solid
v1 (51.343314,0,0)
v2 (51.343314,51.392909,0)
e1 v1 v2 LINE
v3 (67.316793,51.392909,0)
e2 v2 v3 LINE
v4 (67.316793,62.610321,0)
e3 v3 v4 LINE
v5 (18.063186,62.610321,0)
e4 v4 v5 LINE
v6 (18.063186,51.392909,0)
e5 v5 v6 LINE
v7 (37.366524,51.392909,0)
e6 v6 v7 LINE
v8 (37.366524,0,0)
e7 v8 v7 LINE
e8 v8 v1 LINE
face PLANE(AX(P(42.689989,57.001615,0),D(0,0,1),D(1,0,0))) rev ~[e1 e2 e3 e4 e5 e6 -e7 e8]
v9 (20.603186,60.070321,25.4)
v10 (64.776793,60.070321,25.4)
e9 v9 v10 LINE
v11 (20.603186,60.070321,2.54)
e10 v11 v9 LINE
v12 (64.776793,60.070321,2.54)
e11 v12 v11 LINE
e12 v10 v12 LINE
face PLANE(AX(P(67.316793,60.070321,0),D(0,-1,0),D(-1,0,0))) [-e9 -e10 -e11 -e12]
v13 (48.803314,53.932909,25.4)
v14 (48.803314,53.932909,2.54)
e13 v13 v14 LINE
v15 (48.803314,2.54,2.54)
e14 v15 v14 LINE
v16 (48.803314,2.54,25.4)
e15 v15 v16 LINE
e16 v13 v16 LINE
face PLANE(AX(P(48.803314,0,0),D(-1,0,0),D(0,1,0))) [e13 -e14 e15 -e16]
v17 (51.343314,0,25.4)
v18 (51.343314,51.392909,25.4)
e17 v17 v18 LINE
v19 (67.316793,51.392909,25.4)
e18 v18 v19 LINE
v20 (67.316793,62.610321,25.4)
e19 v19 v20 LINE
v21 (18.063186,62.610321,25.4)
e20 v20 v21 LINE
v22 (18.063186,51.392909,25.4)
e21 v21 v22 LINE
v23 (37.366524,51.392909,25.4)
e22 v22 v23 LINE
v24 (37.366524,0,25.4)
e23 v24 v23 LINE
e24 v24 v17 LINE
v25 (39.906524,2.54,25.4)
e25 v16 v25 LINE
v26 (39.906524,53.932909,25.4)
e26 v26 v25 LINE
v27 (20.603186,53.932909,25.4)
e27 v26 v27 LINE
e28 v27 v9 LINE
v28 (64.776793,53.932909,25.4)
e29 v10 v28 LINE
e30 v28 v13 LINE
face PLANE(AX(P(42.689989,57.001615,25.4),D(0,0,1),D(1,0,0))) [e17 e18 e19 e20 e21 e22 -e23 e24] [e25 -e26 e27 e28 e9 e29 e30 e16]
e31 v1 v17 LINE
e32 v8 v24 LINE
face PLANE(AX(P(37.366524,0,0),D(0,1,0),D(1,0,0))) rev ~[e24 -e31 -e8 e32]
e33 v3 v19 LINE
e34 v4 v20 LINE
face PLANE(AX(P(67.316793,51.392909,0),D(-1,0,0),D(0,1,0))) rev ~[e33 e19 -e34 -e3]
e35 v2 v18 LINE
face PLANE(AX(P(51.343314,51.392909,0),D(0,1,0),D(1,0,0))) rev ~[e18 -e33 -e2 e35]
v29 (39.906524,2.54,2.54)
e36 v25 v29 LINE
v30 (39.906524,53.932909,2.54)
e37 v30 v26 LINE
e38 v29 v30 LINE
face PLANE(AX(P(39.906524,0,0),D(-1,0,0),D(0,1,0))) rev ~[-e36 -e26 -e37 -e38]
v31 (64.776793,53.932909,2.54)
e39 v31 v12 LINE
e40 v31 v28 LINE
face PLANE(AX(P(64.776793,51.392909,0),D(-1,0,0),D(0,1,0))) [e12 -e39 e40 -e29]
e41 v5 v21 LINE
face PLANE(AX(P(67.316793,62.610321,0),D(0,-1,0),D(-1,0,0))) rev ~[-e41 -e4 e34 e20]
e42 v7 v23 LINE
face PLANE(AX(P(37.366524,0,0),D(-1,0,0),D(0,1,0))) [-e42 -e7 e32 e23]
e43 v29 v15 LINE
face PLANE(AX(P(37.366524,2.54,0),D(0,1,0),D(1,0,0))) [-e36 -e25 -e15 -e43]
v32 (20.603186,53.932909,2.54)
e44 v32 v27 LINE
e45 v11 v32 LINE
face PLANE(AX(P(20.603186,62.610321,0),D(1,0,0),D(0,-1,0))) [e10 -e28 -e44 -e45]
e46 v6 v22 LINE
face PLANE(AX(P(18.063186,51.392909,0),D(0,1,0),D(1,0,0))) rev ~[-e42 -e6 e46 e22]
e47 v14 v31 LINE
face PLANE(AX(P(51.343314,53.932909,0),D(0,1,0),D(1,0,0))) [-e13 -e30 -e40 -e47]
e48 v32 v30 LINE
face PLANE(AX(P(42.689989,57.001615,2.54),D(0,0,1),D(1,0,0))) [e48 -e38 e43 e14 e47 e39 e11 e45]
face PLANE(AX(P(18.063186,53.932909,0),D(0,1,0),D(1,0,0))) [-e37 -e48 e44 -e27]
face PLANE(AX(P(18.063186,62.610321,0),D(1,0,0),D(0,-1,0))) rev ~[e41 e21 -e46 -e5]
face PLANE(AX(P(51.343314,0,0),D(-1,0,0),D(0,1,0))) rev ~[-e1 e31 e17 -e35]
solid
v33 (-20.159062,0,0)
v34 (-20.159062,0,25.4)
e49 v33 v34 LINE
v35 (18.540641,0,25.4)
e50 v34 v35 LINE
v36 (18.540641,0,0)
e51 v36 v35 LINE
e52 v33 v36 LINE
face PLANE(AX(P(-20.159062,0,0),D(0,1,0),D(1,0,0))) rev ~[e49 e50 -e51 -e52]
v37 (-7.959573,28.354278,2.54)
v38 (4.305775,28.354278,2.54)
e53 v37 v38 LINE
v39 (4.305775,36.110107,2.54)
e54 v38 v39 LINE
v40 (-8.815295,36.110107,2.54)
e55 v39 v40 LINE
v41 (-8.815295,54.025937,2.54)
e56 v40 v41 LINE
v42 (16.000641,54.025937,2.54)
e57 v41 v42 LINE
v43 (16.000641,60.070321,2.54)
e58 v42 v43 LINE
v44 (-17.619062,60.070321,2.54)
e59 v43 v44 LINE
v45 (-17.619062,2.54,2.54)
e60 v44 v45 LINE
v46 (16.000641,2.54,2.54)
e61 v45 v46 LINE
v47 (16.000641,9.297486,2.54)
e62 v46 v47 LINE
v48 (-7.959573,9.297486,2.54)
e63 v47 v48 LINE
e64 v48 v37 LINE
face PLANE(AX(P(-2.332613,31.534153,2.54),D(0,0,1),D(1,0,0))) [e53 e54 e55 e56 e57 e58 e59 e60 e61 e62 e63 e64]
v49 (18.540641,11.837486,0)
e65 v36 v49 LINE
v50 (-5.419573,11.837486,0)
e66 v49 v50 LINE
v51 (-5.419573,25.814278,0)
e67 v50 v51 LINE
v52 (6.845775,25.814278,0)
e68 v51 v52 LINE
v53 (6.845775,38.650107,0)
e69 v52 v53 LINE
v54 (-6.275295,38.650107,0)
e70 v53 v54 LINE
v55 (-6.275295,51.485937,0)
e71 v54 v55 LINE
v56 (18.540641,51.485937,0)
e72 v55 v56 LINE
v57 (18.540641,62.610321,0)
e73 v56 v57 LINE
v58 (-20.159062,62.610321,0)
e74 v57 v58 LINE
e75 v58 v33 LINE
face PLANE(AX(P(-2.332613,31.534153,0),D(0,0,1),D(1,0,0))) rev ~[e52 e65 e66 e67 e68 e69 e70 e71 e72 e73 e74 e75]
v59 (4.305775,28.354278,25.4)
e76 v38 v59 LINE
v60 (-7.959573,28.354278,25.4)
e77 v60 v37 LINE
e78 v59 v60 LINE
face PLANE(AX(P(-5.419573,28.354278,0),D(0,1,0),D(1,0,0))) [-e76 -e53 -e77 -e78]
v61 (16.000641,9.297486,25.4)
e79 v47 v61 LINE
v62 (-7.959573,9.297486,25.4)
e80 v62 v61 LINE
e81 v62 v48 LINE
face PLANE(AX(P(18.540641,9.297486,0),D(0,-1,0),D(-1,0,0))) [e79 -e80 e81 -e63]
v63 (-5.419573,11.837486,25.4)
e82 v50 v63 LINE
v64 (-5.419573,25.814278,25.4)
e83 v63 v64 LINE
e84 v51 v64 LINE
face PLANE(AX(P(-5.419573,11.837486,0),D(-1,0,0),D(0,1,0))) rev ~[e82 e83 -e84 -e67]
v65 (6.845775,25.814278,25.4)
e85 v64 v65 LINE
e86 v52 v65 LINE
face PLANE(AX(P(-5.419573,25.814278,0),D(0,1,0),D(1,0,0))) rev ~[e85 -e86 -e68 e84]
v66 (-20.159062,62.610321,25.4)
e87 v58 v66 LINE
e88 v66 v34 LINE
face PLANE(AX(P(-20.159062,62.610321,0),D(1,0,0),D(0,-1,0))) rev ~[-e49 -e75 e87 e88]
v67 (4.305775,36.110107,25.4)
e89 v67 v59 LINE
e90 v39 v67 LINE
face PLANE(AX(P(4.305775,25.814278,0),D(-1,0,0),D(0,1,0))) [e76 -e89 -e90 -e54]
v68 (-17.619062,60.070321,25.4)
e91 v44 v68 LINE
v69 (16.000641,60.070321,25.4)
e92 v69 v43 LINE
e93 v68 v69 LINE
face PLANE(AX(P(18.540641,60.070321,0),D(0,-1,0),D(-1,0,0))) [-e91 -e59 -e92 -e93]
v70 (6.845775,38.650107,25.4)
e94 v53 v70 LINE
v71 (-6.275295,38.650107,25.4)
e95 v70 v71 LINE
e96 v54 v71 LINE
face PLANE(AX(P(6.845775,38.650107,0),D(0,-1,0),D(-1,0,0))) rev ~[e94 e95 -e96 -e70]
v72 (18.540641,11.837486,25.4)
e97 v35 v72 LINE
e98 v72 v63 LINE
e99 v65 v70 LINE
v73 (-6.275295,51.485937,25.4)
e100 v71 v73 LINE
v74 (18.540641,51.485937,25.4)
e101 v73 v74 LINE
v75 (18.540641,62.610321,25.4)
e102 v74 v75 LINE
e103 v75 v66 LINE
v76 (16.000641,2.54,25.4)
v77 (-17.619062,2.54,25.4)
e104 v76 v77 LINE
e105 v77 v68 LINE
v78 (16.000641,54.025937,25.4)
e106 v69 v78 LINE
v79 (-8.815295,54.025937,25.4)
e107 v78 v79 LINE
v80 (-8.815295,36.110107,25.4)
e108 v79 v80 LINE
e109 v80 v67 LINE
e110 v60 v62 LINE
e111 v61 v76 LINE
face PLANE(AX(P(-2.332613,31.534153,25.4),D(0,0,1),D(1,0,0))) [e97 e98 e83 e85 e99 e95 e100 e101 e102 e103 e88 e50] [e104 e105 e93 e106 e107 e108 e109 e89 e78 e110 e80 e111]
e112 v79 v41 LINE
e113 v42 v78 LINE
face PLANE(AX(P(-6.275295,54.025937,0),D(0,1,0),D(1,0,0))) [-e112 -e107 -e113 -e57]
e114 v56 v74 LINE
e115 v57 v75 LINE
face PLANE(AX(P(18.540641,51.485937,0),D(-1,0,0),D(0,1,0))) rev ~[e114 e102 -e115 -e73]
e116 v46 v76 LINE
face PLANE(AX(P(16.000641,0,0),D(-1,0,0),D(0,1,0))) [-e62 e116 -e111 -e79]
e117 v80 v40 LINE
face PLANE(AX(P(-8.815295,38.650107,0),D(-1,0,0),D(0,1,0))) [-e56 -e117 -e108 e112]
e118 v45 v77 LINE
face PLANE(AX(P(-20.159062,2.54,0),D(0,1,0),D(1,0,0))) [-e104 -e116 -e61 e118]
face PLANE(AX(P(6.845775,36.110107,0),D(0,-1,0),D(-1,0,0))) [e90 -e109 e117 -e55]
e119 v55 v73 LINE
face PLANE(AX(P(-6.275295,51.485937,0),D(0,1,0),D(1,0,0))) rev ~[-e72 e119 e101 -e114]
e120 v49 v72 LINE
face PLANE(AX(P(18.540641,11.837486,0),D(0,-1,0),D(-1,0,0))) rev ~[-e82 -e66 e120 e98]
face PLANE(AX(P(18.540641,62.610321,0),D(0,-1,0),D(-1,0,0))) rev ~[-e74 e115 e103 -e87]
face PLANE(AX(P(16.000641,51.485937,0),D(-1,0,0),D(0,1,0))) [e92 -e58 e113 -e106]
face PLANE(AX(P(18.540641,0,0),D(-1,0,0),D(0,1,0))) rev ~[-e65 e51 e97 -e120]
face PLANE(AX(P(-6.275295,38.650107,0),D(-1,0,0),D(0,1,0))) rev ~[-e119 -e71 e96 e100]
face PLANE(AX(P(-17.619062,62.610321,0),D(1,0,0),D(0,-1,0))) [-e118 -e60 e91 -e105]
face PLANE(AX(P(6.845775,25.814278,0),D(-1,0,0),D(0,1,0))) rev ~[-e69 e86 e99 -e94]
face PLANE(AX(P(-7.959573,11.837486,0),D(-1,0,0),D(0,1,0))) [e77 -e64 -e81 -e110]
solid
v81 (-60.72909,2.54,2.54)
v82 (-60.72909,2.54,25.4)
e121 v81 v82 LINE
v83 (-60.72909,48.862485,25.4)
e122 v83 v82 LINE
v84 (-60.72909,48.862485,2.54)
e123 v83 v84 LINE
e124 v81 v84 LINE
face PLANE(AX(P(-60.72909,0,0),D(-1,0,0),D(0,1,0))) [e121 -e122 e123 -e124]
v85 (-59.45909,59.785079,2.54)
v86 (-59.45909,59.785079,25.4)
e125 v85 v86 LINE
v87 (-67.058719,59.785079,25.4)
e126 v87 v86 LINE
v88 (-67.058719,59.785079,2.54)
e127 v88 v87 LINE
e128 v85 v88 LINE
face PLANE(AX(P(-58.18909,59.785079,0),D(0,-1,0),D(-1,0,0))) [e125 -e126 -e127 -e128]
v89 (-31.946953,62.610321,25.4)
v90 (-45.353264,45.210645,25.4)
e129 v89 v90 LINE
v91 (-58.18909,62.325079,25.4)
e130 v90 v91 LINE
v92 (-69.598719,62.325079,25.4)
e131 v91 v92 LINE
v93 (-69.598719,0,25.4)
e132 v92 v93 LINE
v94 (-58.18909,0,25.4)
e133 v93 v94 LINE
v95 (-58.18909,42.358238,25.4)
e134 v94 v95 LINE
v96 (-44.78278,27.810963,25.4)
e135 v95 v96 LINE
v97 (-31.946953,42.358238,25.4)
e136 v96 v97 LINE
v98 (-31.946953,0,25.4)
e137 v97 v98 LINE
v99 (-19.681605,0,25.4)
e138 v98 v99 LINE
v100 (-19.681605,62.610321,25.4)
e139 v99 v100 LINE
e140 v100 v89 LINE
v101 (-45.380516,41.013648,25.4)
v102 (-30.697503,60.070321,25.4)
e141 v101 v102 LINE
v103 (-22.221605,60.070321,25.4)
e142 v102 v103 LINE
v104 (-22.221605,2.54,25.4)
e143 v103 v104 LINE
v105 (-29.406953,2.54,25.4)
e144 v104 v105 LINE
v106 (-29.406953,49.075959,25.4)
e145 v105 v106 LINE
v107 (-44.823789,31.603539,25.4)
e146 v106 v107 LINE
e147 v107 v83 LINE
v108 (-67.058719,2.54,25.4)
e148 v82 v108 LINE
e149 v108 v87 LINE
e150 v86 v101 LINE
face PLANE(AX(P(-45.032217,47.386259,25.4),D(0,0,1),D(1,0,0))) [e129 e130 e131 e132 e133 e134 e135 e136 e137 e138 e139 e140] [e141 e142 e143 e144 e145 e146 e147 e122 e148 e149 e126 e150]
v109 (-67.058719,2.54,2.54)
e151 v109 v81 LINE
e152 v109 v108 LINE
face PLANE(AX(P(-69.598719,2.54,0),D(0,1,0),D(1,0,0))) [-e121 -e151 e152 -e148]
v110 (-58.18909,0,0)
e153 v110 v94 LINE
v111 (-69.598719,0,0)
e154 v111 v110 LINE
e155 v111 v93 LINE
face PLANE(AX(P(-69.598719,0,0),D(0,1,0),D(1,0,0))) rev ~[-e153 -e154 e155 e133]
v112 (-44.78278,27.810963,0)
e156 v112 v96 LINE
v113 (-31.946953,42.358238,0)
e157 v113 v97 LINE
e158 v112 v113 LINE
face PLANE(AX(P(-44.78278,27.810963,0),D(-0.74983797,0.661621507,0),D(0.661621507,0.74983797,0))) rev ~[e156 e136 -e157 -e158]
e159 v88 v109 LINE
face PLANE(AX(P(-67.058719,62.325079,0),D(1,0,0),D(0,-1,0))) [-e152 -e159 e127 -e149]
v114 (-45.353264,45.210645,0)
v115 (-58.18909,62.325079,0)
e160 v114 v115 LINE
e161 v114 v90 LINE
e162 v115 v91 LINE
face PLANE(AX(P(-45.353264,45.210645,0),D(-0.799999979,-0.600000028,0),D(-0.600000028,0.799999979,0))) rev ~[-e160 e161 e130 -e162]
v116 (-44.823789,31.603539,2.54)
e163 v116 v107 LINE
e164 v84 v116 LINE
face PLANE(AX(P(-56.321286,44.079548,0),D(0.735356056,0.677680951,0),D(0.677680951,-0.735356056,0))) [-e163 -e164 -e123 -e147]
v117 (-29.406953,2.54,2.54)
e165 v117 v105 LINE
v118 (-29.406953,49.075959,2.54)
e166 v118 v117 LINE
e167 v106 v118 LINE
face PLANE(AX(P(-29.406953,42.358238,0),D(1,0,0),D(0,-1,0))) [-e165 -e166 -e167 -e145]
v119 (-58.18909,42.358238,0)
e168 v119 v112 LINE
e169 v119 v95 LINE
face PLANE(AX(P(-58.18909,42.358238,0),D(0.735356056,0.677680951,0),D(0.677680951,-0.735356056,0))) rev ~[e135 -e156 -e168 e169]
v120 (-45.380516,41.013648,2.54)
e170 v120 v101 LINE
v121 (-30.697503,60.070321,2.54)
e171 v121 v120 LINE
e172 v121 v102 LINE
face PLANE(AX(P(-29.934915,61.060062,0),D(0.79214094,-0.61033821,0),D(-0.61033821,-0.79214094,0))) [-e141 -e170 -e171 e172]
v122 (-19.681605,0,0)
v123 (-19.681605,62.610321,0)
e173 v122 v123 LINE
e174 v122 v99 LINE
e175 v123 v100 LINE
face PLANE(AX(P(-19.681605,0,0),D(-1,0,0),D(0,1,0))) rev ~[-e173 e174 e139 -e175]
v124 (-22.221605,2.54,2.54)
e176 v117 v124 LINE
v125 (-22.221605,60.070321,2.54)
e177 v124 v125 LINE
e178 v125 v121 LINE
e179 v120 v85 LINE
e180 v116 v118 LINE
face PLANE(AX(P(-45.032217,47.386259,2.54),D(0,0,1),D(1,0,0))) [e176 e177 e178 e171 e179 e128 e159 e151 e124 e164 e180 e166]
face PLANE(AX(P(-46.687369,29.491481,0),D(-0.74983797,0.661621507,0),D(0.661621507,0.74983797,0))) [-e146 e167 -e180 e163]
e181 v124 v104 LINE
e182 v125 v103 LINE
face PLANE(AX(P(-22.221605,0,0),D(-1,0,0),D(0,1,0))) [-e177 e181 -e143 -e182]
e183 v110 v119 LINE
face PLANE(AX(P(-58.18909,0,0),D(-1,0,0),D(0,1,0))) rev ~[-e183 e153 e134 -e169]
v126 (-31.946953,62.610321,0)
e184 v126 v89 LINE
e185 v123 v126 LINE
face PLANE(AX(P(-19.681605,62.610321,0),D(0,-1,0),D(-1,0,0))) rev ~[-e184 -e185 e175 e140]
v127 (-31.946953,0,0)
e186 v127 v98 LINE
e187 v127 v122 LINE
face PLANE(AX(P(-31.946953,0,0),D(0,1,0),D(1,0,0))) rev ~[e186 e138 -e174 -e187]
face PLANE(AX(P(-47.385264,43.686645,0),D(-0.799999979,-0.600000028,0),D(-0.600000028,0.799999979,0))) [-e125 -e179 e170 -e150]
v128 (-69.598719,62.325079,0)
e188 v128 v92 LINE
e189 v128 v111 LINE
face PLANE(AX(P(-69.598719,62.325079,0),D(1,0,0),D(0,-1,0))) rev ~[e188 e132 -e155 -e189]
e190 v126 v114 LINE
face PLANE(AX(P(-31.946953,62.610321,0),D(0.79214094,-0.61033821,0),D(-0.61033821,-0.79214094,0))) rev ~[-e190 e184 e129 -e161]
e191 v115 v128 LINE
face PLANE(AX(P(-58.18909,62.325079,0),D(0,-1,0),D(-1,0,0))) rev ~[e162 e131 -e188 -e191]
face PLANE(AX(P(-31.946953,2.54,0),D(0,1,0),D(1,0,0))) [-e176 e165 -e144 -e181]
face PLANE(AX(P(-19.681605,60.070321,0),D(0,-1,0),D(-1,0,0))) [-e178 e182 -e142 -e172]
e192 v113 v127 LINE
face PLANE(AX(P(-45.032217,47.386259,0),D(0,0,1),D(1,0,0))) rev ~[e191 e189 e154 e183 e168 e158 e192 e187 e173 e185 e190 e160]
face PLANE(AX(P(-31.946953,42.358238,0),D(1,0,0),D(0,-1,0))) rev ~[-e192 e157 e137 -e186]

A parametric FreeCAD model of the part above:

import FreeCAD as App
import Part
import Sketcher
from FreeCAD import Vector
Q = App.Units.Quantity


def faces_at(feature, points):
    """Names of the faces that lie closest to the given points."""
    faces = feature.Shape.Faces
    near = lambda p: min(range(len(faces)), key=lambda i: faces[i].distToShape(Part.Vertex(*p))[0])
    return sorted({f"Face{near(p) + 1}" for p in points})


def add_polygon(sketch, points):
    """Adds a closed chain of lines whose ends are joined by coincident constraints."""
    first, n = sketch.GeometryCount, len(points)
    for a, b in zip(points, points[1:] + points[:1]):
        sketch.addGeometry(Part.LineSegment(App.Vector(*a, 0), App.Vector(*b, 0)), False)
    for i in range(n):
        sketch.addConstraint(Sketcher.Constraint("Coincident", first + i, 2, first + (i + 1) % n, 1))

doc = App.newDocument("Part")
params = doc.addObject("Spreadsheet::Sheet", "Params")
for row, (alias, value) in enumerate([
    ("pad1_length", "1 in"),
    ("thickness_wall", "0.1 in"),
    ("pad2_length", "1 in"),
    ("thickness2_wall", "0.1 in"),
    ("pad3_length", "1 in"),
    ("thickness3_wall", "0.1 in"),
], start=1):
    params.set(f"A{row}", alias)
    params.set(f"B{row}", "=" + value)
    params.setAlias(f"B{row}", alias)

body = doc.addObject("PartDesign::Body", "Body")

# Sketch on XY plane
sketch1 = body.newObject("Sketcher::SketchObject", "Sketch")
sketch1.AttachmentSupport = (doc.getObject("XY_Plane"), [""])
sketch1.MapMode = "FlatFace"
add_polygon(sketch1, [(-45.353264, 45.210645), (-58.18909, 62.325079), (-69.598719, 62.325079), (-69.598719, 0), (-58.18909, 0), (-58.18909, 42.358238), (-44.78278, 27.810963), (-31.946953, 42.358238), (-31.946953, 0), (-19.681605, 0), (-19.681605, 62.610321), (-31.946953, 62.610321)])  # lines 0-11
sketch1.addConstraint([
    Sketcher.Constraint("Horizontal", 1),
    Sketcher.Constraint("Vertical", 2),
    Sketcher.Constraint("Horizontal", 3),
    Sketcher.Constraint("Vertical", 4),
    Sketcher.Constraint("Vertical", 7),
    Sketcher.Constraint("Horizontal", 8),
    Sketcher.Constraint("Vertical", 9),
    Sketcher.Constraint("Horizontal", 10),
    Sketcher.Constraint("PointOnObject", 2, 2, -1),
    Sketcher.Constraint("PointOnObject", 7, 2, -1),
    Sketcher.Constraint("Horizontal", 4, 2, 6, 2),
    Sketcher.Constraint("Vertical", 0, 2, 3, 2),
    Sketcher.Constraint("Vertical", 7, 2, 10, 2),
    Sketcher.Constraint("DistanceX", 1, 2, 1, 1, Q("11.409629 mm")),
    Sketcher.Constraint("DistanceX", 8, 1, 8, 2, Q("12.265349 mm")),
    Sketcher.Constraint("DistanceY", 2, 2, 2, 1, Q("62.325079 mm")),
    Sketcher.Constraint("DistanceY", 4, 1, 4, 2, Q("42.358238 mm")),
    Sketcher.Constraint("DistanceY", 9, 1, 9, 2, Q("62.610321 mm")),
    Sketcher.Constraint("Distance", 5, Q("19.782628 mm")),
    Sketcher.Constraint("Distance", 6, Q("19.400558 mm")),
    Sketcher.Constraint("Distance", 11, Q("21.965379 mm")),
    Sketcher.Constraint("DistanceX", 0, 2, -1, 1, Q("58.18909 mm")),
    Sketcher.Constraint("DistanceX", 5, 2, -1, 1, Q("44.78278 mm")),
    Sketcher.Constraint("DistanceX", 11, 2, 6, 2, Q("13.40631 mm")),
])
pad1 = body.newObject("PartDesign::Pad", "Pad")
pad1.Profile = sketch1
pad1.setExpression("Length", "Params.pad1_length")
doc.recompute()

thickness = body.newObject("PartDesign::Thickness", "Thickness")
thickness.Base = (pad1, faces_at(pad1, [(-44.64, 31.305, 25.4)]))
thickness.setExpression("Value", "Params.thickness_wall")
thickness.Reversed = True
thickness.Join = "Intersection"
body2 = doc.addObject("PartDesign::Body", "Body001")

# Sketch on XY plane
sketch2 = body2.newObject("Sketcher::SketchObject", "Sketch001")
sketch2.AttachmentSupport = (doc.getObject("XY_Plane001"), [""])
sketch2.MapMode = "FlatFace"
add_polygon(sketch2, [(18.540641, 62.610321), (-20.159062, 62.610321), (-20.159062, 0), (18.540641, 0), (18.540641, 11.837486), (-5.419573, 11.837486), (-5.419573, 25.814278), (6.845775, 25.814278), (6.845775, 38.650107), (-6.275295, 38.650107), (-6.275295, 51.485937), (18.540641, 51.485937)])  # lines 0-11
sketch2.addConstraint([
    Sketcher.Constraint("Horizontal", 0),
    Sketcher.Constraint("Vertical", 1),
    Sketcher.Constraint("Horizontal", 2),
    Sketcher.Constraint("Vertical", 3),
    Sketcher.Constraint("Horizontal", 4),
    Sketcher.Constraint("Vertical", 5),
    Sketcher.Constraint("Horizontal", 6),
    Sketcher.Constraint("Vertical", 7),
    Sketcher.Constraint("Horizontal", 8),
    Sketcher.Constraint("Vertical", 9),
    Sketcher.Constraint("Horizontal", 10),
    Sketcher.Constraint("Vertical", 11),
    Sketcher.Constraint("PointOnObject", 1, 2, -1),
    Sketcher.Constraint("Vertical", 3, 2, 10, 2),
    Sketcher.Constraint("Equal", 7, 9),
    Sketcher.Constraint("DistanceX", 8, 2, 8, 1, Q("13.12107 mm")),
    Sketcher.Constraint("DistanceY", 1, 2, 1, 1, Q("62.610321 mm")),
    Sketcher.Constraint("DistanceY", 5, 1, 5, 2, Q("13.976792 mm")),
    Sketcher.Constraint("DistanceY", 7, 1, 7, 2, Q("12.835829 mm")),
    Sketcher.Constraint("DistanceX", 0, 2, 0, 1, Q("38.699703 mm")),
    Sketcher.Constraint("DistanceX", 4, 2, 4, 1, Q("23.960214 mm")),
    Sketcher.Constraint("DistanceX", 6, 1, 6, 2, Q("12.265348 mm")),
    Sketcher.Constraint("DistanceY", 3, 1, 3, 2, Q("11.837486 mm")),
    Sketcher.Constraint("DistanceX", 0, 2, -1, 1, Q("20.159062 mm")),
])
pad2 = body2.newObject("PartDesign::Pad", "Pad001")
pad2.Profile = sketch2
pad2.setExpression("Length", "Params.pad2_length")
doc.recompute()

thickness2 = body2.newObject("PartDesign::Thickness", "Thickness001")
thickness2.Base = (pad2, faces_at(pad2, [(-0.809, 31.305, 25.4)]))
thickness2.setExpression("Value", "Params.thickness2_wall")
thickness2.Reversed = True
thickness2.Join = "Intersection"
body3 = doc.addObject("PartDesign::Body", "Body002")

# Sketch on XY plane
sketch3 = body3.newObject("Sketcher::SketchObject", "Sketch002")
sketch3.AttachmentSupport = (doc.getObject("XY_Plane002"), [""])
sketch3.MapMode = "FlatFace"
add_polygon(sketch3, [(67.316793, 62.610321), (18.063186, 62.610321), (18.063186, 51.392909), (37.366524, 51.392909), (37.366524, 0), (51.343314, 0), (51.343314, 51.392909), (67.316793, 51.392909)])  # lines 0-7
sketch3.addConstraint([
    Sketcher.Constraint("Horizontal", 0),
    Sketcher.Constraint("Vertical", 1),
    Sketcher.Constraint("Horizontal", 2),
    Sketcher.Constraint("Vertical", 3),
    Sketcher.Constraint("Horizontal", 4),
    Sketcher.Constraint("Vertical", 5),
    Sketcher.Constraint("Horizontal", 6),
    Sketcher.Constraint("Vertical", 7),
    Sketcher.Constraint("PointOnObject", 3, 2, -1),
    Sketcher.Constraint("Horizontal", 2, 2, 5, 2),
    Sketcher.Constraint("DistanceX", 2, 1, 2, 2, Q("19.303339 mm")),
    Sketcher.Constraint("DistanceX", 4, 1, 4, 2, Q("13.97679 mm")),
    Sketcher.Constraint("DistanceX", 6, 1, 6, 2, Q("15.973479 mm")),
    Sketcher.Constraint("DistanceY", 1, 2, 1, 1, Q("11.217412 mm")),
    Sketcher.Constraint("DistanceY", 3, 2, 3, 1, Q("51.392909 mm")),
    Sketcher.Constraint("DistanceX", -1, 1, 0, 2, Q("18.063186 mm")),
])
pad3 = body3.newObject("PartDesign::Pad", "Pad002")
pad3.Profile = sketch3
pad3.setExpression("Length", "Params.pad3_length")
doc.recompute()

thickness3 = body3.newObject("PartDesign::Thickness", "Thickness002")
thickness3.Base = (pad3, faces_at(pad3, [(42.69, 31.305, 25.4)]))
thickness3.setExpression("Value", "Params.thickness3_wall")
thickness3.Reversed = True
thickness3.Join = "Intersection"

doc.recompute()
